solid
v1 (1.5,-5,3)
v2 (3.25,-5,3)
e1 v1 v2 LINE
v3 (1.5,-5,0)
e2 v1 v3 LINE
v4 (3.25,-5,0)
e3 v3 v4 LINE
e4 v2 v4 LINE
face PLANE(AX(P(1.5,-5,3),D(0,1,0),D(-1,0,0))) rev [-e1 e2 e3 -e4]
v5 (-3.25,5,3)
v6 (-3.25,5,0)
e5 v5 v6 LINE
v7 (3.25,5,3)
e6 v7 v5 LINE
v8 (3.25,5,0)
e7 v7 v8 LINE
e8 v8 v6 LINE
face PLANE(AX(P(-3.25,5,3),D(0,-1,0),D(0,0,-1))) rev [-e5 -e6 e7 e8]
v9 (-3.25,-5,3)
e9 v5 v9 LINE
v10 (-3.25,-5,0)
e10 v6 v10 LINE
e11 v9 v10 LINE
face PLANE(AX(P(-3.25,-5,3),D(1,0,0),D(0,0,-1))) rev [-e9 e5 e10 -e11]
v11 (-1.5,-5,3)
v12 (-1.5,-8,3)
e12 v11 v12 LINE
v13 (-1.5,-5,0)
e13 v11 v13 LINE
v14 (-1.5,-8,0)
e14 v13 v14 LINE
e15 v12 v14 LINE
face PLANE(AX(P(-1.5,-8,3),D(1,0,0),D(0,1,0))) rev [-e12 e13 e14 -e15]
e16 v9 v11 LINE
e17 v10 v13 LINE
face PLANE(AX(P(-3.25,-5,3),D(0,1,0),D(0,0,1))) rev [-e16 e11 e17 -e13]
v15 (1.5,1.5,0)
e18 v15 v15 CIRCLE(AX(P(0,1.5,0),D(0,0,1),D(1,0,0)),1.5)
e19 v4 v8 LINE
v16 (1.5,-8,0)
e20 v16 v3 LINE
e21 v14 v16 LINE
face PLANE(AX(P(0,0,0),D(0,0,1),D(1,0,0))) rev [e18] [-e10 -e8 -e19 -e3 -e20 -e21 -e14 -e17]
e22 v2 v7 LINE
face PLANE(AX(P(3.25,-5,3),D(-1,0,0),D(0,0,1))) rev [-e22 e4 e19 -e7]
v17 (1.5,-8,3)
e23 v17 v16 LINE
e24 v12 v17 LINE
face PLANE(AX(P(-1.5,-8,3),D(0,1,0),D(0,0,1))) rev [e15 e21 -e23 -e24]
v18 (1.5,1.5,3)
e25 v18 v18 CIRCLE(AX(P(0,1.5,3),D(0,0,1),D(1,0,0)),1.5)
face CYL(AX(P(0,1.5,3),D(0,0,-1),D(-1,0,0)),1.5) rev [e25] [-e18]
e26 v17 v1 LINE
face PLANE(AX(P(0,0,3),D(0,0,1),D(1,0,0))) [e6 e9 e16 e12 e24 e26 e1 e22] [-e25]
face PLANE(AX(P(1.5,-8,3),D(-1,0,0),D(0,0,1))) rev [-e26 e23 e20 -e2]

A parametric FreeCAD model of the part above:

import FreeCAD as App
import Part
import Sketcher
from FreeCAD import Vector

doc = App.newDocument("Part")
params = doc.addObject("Spreadsheet::Sheet", "Params")
for row, (alias, value) in enumerate([
    ("sketch1_diameter", "3 mm"),
    ("sketch1_width", "3 mm"),
    ("sketch1_height", "10 mm"),
    ("sketch1_width2", "6.5 mm"),
    ("pad1_length", "3 mm"),
], start=1):
    params.set(f"A{row}", alias)
    params.set(f"B{row}", "=" + value)
    params.setAlias(f"B{row}", alias)

body = doc.addObject("PartDesign::Body", "Body")

# Sketch on XY plane
sketch1 = doc.addObject("Sketcher::SketchObject", "Sketch")
body.addObject(sketch1)
sketch1.AttachmentSupport = (doc.XY_Plane, [""])
sketch1.MapMode = "FlatFace"
sketch1.addGeometry(Part.LineSegment(Vector(-3.2, 5, 0), Vector(-3.2, -5, 0)), False)
sketch1.addGeometry(Part.LineSegment(Vector(-3.2, -5, 0), Vector(-1.5, -5, 0)), False)
sketch1.addGeometry(Part.LineSegment(Vector(-1.5, -5, 0), Vector(-1.5, -8, 0)), False)
sketch1.addGeometry(Part.LineSegment(Vector(-1.5, -8, 0), Vector(1.5, -8, 0)), False)
sketch1.addGeometry(Part.LineSegment(Vector(1.5, -8, 0), Vector(1.5, -5, 0)), False)
sketch1.addGeometry(Part.LineSegment(Vector(1.5, -5, 0), Vector(3.2, -5, 0)), False)
sketch1.addGeometry(Part.LineSegment(Vector(3.2, -5, 0), Vector(3.2, 5, 0)), False)
sketch1.addGeometry(Part.LineSegment(Vector(3.2, 5, 0), Vector(-3.2, 5, 0)), False)
sketch1.addGeometry(Part.Circle(Vector(0, 1.5, 0), Vector(0, 0, 1), 1.5), False)
sketch1.addConstraint(Sketcher.Constraint("Coincident", 0, 2, 1, 1))
sketch1.addConstraint(Sketcher.Constraint("Coincident", 1, 2, 2, 1))
sketch1.addConstraint(Sketcher.Constraint("Coincident", 2, 2, 3, 1))
sketch1.addConstraint(Sketcher.Constraint("Coincident", 3, 2, 4, 1))
sketch1.addConstraint(Sketcher.Constraint("Coincident", 4, 2, 5, 1))
sketch1.addConstraint(Sketcher.Constraint("Coincident", 5, 2, 6, 1))
sketch1.addConstraint(Sketcher.Constraint("Coincident", 6, 2, 7, 1))
sketch1.addConstraint(Sketcher.Constraint("Coincident", 7, 2, 0, 1))
sketch1.addConstraint(Sketcher.Constraint("Vertical", 0))
sketch1.addConstraint(Sketcher.Constraint("Horizontal", 1))
sketch1.addConstraint(Sketcher.Constraint("Vertical", 2))
sketch1.addConstraint(Sketcher.Constraint("Horizontal", 3))
sketch1.addConstraint(Sketcher.Constraint("Vertical", 4))
sketch1.addConstraint(Sketcher.Constraint("Horizontal", 5))
sketch1.addConstraint(Sketcher.Constraint("Vertical", 6))
sketch1.addConstraint(Sketcher.Constraint("Horizontal", 7))
sketch1.addConstraint(Sketcher.Constraint("Symmetric", 0, 2, 6, 2, -1, 1))
sketch1.addConstraint(Sketcher.Constraint("Symmetric", 1, 2, 4, 2, -2))
sketch1.addConstraint(Sketcher.Constraint("PointOnObject", 8, 3, -2))
sketch1.addConstraint(Sketcher.Constraint("Equal", 3, 2))
sketch1.addConstraint(Sketcher.Constraint("Diameter", 8, 3.0))
sketch1.addConstraint(Sketcher.Constraint("DistanceX", 3, 1, 3, 2, 3.0))
sketch1.addConstraint(Sketcher.Constraint("DistanceY", 0, 2, 0, 1, 10.0))
sketch1.addConstraint(Sketcher.Constraint("DistanceX", 7, 2, 7, 1, 6.5))
sketch1.addConstraint(Sketcher.Constraint("DistanceY", -1, 1, 8, 3, 1.5))
sketch1.setExpression("Constraints[20]", "Params.sketch1_diameter")
sketch1.setExpression("Constraints[21]", "Params.sketch1_width")
sketch1.setExpression("Constraints[22]", "Params.sketch1_height")
sketch1.setExpression("Constraints[23]", "Params.sketch1_width2")
pad1 = doc.addObject("PartDesign::Pad", "Pad")
body.addObject(pad1)
pad1.Profile = sketch1
pad1.setExpression("Length", "Params.pad1_length")

doc.recompute()
